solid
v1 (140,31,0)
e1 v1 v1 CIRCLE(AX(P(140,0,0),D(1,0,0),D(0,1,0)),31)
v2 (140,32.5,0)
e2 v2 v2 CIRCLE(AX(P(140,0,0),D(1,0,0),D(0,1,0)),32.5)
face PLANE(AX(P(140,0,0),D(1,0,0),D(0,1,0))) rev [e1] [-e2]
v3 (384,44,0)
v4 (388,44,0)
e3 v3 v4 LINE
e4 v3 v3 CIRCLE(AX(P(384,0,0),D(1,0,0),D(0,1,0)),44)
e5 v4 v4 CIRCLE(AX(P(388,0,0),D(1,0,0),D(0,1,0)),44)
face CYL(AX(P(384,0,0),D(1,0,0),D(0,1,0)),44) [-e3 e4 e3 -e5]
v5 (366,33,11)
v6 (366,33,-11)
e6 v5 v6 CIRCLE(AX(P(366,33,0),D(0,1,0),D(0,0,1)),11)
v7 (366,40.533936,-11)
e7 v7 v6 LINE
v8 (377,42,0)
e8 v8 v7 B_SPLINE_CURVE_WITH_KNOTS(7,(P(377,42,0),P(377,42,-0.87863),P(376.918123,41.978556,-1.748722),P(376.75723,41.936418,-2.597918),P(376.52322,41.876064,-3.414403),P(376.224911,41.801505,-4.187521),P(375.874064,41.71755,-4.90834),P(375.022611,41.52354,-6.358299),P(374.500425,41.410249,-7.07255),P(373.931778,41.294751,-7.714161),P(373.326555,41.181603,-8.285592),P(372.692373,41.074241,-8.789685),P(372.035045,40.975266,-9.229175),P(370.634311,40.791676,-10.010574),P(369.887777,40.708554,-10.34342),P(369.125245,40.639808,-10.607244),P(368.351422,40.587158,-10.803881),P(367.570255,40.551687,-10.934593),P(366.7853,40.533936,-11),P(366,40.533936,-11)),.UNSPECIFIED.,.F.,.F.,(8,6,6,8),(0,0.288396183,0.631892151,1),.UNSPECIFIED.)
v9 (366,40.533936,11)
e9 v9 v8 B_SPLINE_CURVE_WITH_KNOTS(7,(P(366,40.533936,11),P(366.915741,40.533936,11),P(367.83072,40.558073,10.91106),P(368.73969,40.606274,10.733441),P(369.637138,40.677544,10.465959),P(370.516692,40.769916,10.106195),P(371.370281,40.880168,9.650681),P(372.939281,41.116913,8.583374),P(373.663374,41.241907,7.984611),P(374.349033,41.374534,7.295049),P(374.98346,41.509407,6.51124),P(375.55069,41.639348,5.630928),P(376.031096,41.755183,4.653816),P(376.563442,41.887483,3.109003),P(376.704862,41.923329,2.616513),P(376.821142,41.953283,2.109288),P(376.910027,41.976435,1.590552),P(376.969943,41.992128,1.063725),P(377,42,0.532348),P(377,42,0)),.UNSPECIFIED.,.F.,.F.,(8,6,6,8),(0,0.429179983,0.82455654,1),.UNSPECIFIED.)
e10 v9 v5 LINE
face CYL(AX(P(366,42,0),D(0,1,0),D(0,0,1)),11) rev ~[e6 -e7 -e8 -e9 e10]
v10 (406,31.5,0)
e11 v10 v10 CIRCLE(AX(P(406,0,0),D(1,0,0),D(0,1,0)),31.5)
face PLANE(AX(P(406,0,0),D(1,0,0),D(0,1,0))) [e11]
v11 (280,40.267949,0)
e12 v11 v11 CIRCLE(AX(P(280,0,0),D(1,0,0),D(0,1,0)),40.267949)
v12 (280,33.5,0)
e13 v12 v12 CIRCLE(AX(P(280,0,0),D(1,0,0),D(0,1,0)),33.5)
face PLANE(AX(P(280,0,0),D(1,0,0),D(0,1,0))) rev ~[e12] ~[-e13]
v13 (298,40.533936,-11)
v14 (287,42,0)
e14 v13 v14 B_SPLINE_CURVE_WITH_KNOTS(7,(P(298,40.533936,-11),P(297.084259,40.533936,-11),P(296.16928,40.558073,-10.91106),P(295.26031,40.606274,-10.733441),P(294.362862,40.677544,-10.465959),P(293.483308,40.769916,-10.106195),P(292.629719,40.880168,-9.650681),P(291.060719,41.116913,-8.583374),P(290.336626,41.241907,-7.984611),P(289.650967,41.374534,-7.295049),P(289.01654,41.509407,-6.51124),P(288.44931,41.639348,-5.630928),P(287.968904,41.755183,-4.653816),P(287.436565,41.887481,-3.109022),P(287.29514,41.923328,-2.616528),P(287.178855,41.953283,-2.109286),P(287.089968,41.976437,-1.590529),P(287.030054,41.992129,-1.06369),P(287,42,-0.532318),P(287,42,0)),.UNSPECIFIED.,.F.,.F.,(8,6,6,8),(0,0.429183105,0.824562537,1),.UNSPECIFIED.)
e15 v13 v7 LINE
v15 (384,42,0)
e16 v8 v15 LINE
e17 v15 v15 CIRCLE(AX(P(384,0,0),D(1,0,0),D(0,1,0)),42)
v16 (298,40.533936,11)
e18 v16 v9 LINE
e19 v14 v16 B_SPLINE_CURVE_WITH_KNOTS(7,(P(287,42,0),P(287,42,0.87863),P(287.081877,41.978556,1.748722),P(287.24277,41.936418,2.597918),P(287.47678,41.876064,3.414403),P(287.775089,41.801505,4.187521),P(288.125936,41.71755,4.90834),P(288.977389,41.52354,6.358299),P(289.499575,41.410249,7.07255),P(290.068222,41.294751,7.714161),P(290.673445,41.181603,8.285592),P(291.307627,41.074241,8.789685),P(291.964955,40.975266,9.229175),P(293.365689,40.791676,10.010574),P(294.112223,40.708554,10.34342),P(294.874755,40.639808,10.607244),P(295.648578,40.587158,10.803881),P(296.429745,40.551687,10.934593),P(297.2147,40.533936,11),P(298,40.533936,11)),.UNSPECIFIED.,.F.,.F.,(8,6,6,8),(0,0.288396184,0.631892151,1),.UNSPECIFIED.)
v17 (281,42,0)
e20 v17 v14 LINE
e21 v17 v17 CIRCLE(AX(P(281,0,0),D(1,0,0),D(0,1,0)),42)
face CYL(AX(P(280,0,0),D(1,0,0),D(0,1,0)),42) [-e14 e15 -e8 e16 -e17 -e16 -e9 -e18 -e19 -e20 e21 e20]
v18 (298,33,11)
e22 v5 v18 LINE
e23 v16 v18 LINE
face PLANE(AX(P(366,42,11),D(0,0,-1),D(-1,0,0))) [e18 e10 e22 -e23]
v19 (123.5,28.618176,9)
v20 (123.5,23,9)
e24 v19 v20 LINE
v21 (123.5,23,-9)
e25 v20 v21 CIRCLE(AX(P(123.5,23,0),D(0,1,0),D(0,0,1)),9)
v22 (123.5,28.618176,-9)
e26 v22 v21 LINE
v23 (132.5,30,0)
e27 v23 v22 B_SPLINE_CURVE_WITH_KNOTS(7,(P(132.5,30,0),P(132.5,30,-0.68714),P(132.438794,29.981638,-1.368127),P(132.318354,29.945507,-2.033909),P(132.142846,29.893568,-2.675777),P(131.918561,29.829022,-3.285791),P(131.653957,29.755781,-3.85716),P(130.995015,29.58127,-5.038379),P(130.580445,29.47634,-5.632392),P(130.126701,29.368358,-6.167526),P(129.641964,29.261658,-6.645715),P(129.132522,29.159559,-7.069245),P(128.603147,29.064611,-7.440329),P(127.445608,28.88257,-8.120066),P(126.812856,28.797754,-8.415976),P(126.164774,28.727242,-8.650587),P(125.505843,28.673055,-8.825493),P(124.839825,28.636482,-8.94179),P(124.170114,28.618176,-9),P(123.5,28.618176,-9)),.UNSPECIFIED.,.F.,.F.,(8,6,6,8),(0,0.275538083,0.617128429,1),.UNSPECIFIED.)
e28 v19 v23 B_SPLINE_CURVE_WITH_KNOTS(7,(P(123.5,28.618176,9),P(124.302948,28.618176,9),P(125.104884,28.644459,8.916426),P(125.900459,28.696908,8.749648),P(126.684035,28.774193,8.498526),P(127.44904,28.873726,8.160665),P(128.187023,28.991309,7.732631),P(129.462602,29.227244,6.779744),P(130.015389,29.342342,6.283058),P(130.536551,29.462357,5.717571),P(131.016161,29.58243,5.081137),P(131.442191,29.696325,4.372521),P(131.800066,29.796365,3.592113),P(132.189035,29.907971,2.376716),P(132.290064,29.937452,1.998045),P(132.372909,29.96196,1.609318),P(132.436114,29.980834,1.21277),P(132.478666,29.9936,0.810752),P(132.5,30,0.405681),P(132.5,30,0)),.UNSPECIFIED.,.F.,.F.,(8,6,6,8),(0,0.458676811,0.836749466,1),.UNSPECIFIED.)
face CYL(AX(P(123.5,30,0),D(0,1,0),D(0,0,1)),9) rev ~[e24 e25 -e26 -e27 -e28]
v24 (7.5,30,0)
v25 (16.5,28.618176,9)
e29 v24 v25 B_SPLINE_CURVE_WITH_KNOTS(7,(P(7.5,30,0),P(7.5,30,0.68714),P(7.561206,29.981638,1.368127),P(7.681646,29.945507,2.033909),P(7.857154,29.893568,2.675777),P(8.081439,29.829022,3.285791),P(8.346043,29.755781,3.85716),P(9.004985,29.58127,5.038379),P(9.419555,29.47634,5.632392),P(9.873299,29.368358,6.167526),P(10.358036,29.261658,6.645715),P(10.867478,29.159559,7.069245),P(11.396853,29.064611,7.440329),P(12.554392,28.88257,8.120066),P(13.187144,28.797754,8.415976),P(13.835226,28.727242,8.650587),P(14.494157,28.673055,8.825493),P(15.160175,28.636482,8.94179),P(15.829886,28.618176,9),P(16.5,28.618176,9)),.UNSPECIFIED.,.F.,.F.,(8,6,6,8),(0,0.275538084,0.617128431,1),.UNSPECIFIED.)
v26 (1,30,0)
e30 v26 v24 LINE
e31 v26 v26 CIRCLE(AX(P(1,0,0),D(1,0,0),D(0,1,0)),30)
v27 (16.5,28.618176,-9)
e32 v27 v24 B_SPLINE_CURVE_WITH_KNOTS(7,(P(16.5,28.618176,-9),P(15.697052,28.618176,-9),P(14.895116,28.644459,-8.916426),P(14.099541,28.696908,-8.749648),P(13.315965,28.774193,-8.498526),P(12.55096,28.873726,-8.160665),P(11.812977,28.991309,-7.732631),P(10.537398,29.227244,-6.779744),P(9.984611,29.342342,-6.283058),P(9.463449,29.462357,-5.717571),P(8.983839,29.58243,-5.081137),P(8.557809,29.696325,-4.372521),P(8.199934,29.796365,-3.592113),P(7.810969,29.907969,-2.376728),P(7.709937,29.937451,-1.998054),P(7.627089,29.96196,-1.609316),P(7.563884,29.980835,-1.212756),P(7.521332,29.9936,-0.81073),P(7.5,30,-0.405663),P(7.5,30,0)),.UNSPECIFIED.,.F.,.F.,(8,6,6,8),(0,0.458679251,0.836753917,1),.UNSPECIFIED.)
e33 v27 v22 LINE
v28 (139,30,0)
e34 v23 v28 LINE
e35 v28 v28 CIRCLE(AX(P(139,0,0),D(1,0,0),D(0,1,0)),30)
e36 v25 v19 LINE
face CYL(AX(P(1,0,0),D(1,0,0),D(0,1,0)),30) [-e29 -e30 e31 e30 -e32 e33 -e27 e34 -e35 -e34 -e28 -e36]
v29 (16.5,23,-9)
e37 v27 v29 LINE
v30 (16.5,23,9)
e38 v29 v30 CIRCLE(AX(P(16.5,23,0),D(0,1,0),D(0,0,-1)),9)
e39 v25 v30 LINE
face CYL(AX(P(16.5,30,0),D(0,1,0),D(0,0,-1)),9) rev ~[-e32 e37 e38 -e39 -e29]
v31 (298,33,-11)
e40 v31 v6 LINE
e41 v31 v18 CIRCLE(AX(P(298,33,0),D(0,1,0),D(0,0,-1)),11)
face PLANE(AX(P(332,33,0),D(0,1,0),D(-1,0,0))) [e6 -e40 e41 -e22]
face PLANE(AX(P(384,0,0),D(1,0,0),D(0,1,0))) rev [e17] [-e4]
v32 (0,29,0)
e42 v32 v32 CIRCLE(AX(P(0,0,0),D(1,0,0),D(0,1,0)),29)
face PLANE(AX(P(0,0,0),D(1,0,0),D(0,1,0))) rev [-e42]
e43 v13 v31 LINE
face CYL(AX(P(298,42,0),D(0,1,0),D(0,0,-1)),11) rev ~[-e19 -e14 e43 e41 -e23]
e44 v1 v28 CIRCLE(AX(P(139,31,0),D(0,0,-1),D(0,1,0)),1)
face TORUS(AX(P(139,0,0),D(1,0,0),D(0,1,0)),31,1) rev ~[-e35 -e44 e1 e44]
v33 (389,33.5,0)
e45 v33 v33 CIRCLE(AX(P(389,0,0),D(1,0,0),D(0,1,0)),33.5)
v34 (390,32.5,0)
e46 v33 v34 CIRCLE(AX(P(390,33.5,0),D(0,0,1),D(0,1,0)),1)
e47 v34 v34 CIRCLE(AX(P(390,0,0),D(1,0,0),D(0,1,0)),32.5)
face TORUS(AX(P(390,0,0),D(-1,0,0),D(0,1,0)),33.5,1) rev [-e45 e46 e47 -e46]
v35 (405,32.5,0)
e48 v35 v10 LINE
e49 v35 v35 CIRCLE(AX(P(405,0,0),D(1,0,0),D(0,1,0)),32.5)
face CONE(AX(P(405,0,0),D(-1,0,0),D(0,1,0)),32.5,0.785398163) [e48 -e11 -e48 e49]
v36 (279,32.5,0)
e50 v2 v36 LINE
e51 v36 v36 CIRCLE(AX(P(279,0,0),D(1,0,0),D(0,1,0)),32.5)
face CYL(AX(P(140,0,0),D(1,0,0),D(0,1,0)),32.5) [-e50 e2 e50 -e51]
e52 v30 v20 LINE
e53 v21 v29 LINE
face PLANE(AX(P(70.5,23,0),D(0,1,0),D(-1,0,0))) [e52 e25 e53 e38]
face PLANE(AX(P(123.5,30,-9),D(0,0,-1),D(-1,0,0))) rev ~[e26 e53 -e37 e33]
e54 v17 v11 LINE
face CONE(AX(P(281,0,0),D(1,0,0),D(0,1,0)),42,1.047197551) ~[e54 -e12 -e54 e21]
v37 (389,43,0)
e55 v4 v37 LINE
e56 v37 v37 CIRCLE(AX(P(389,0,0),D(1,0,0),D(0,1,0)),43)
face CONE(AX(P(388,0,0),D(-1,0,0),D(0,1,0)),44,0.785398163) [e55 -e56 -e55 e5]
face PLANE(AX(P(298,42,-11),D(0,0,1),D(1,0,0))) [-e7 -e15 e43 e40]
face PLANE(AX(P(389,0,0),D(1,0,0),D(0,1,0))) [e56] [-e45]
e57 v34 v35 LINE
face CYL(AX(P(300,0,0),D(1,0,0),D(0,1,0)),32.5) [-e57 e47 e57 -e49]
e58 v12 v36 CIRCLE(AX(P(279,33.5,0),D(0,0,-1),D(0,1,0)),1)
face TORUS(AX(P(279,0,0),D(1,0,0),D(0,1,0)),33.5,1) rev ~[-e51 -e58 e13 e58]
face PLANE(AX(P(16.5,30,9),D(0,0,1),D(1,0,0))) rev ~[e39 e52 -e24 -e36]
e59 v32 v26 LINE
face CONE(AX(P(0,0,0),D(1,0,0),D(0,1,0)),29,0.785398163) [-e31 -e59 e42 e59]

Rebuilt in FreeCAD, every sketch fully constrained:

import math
import FreeCAD as App
import Part
import Sketcher
from FreeCAD import Vector
Q = App.Units.Quantity


def edges_at(feature, points):
    """Names of the edges that pass closest to the given points."""
    edges = feature.Shape.Edges
    near = lambda p: min(range(len(edges)), key=lambda i: edges[i].distToShape(Part.Vertex(*p))[0])
    return sorted({f"Edge{near(p) + 1}" for p in points})


def add_polygon(sketch, points):
    """Adds a closed chain of lines whose ends are joined by coincident constraints."""
    first, n = sketch.GeometryCount, len(points)
    for a, b in zip(points, points[1:] + points[:1]):
        sketch.addGeometry(Part.LineSegment(App.Vector(*a, 0), App.Vector(*b, 0)), False)
    for i in range(n):
        sketch.addConstraint(Sketcher.Constraint("Coincident", first + i, 2, first + (i + 1) % n, 1))

doc = App.newDocument("Part")
body = doc.addObject("PartDesign::Body", "Body")

sketch1 = doc.addObject("Sketcher::SketchObject", "Sketch")
body.addObject(sketch1)
sketch1.AttachmentSupport = (doc.XY_Plane, [""])
sketch1.MapMode = "FlatFace"
add_polygon(sketch1, [(0, 29), (0, 0), (406, 0), (406, 31.5), (405, 32.5), (389, 32.5), (389, 44), (384, 44), (384, 42), (280, 42), (280, 32.5), (140, 32.5), (140, 30), (1, 30)])
sketch1.addConstraint([
    Sketcher.Constraint("Vertical", 0),
    Sketcher.Constraint("Horizontal", 1),
    Sketcher.Constraint("Vertical", 2),
    Sketcher.Constraint("Horizontal", 4),
    Sketcher.Constraint("Vertical", 5),
    Sketcher.Constraint("Horizontal", 6),
    Sketcher.Constraint("Vertical", 7),
    Sketcher.Constraint("Horizontal", 8),
    Sketcher.Constraint("Vertical", 9),
    Sketcher.Constraint("Horizontal", 10),
    Sketcher.Constraint("Vertical", 11),
    Sketcher.Constraint("Horizontal", 12),
    Sketcher.Constraint("Coincident", 0, 2, -1, 1),
    Sketcher.Constraint("Perpendicular", 3, 13),
    Sketcher.Constraint("Horizontal", 4, 2, 9, 2),
    Sketcher.Constraint("Equal", 3, 13),
    Sketcher.Constraint("DistanceX", 6, 2, 6, 1, Q("5 mm")),
    Sketcher.Constraint("DistanceX", 8, 2, 8, 1, Q("104 mm")),
    Sketcher.Constraint("DistanceX", 10, 2, 10, 1, Q("140 mm")),
    Sketcher.Constraint("DistanceY", 7, 2, 7, 1, Q("2 mm")),
    Sketcher.Constraint("DistanceY", -1, 1, 7, 2, Q("42 mm")),
    Sketcher.Constraint("DistanceX", -1, 1, 10, 2, Q("140 mm")),
    Sketcher.Constraint("DistanceY", -1, 1, 11, 2, Q("30 mm")),
    Sketcher.Constraint("DistanceX", -1, 1, 12, 2, Q("1 mm")),
    Sketcher.Constraint("DistanceX", 3, 2, 2, 2, Q("1 mm")),
    Sketcher.Constraint("DistanceX", 4, 2, 2, 2, Q("17 mm")),
    Sketcher.Constraint("DistanceY", -1, 1, 3, 2, Q("32.5 mm")),
])
revolution = doc.addObject("PartDesign::Revolution", "Revolution")
body.addObject(revolution)
revolution.Profile = sketch1
revolution.ReferenceAxis = (sketch1, ["H_Axis"])
revolution.Angle = 360

sketch2 = doc.addObject("Sketcher::SketchObject", "Sketch001")
body.addObject(sketch2)
sketch2.AttachmentSupport = (doc.XZ_Plane, [""])
sketch2.MapMode = "FlatFace"
sketch2.AttachmentOffset = App.Placement(Vector(0, 0, -30), App.Rotation())
sketch2.addGeometry([
    Part.ArcOfCircle(Part.Circle(Vector(16, 0, 0), Vector(0, 0, 1), 9), math.radians(90), math.radians(270)),
    Part.LineSegment(Vector(16, 9, 0), Vector(124, 9, 0)),
    Part.ArcOfCircle(Part.Circle(Vector(124, 0, 0), Vector(0, 0, 1), 9), math.radians(-90), math.radians(90)),
    Part.LineSegment(Vector(124, -9, 0), Vector(16, -9, 0)),
], False)
sketch2.addConstraint([
    Sketcher.Constraint("Tangent", 0, 1, 1, 1),
    Sketcher.Constraint("Tangent", 1, 2, 2, 2),
    Sketcher.Constraint("Tangent", 2, 1, 3, 1),
    Sketcher.Constraint("Tangent", 3, 2, 0, 2),
    Sketcher.Constraint("Horizontal", 1),
    Sketcher.Constraint("Horizontal", 3),
    Sketcher.Constraint("PointOnObject", 0, 3, -1),
    Sketcher.Constraint("Radius", 0, Q("9 mm")),
    Sketcher.Constraint("DistanceX", 1, 1, 1, 2, Q("107 mm")),
    Sketcher.Constraint("DistanceX", -1, 1, 0, 3, Q("16.5 mm")),
])
pocket1 = doc.addObject("PartDesign::Pocket", "Pocket")
body.addObject(pocket1)
pocket1.Profile = sketch2
pocket1.Length = 7
pocket1.Reversed = True

sketch3 = doc.addObject("Sketcher::SketchObject", "Sketch002")
body.addObject(sketch3)
sketch3.AttachmentSupport = (doc.XZ_Plane, [""])
sketch3.MapMode = "FlatFace"
sketch3.AttachmentOffset = App.Placement(Vector(0, 0, -42), App.Rotation())
sketch3.addGeometry([
    Part.LineSegment(Vector(366, -11, 0), Vector(298, -11, 0)),
    Part.ArcOfCircle(Part.Circle(Vector(298, 0, 0), Vector(0, 0, 1), 11), math.radians(90), math.radians(270)),
    Part.LineSegment(Vector(298, 11, 0), Vector(366, 11, 0)),
    Part.ArcOfCircle(Part.Circle(Vector(366, 0, 0), Vector(0, 0, 1), 11), math.radians(-90), math.radians(90)),
], False)
sketch3.addConstraint([
    Sketcher.Constraint("Tangent", 0, 2, 1, 2),
    Sketcher.Constraint("Tangent", 1, 1, 2, 1),
    Sketcher.Constraint("Tangent", 2, 2, 3, 2),
    Sketcher.Constraint("Tangent", 3, 1, 0, 1),
    Sketcher.Constraint("Horizontal", 0),
    Sketcher.Constraint("Horizontal", 2),
    Sketcher.Constraint("PointOnObject", 1, 3, -1),
    Sketcher.Constraint("Radius", 1, Q("11 mm")),
    Sketcher.Constraint("DistanceX", 0, 2, 0, 1, Q("68 mm")),
    Sketcher.Constraint("DistanceX", -1, 1, 1, 3, Q("298 mm")),
])
pocket2 = doc.addObject("PartDesign::Pocket", "Pocket001")
body.addObject(pocket2)
pocket2.Profile = sketch3
pocket2.Length = 9
pocket2.Reversed = True
doc.recompute()

chamfer = doc.addObject("PartDesign::Chamfer", "Chamfer")
body.addObject(chamfer)
chamfer.Base = (pocket2, edges_at(pocket2, [(389, -44, 0)]))
chamfer.Size = 1
doc.recompute()

chamfer2 = doc.addObject("PartDesign::Chamfer", "Chamfer001")
body.addObject(chamfer2)
chamfer2.Base = (chamfer, edges_at(chamfer, [(280, -42, 0)]))
chamfer2.ChamferType = "Distance and Angle"
chamfer2.Size = 1
chamfer2.Angle = 60
doc.recompute()

fillet = doc.addObject("PartDesign::Fillet", "Fillet")
body.addObject(fillet)
fillet.Base = (chamfer2, edges_at(chamfer2, [(280, -32.5, 0)]))
fillet.Radius = 1
doc.recompute()

fillet2 = doc.addObject("PartDesign::Fillet", "Fillet001")
body.addObject(fillet2)
fillet2.Base = (fillet, edges_at(fillet, [(140, -30, 0)]))
fillet2.Radius = 1
doc.recompute()

fillet3 = doc.addObject("PartDesign::Fillet", "Fillet002")
body.addObject(fillet3)
fillet3.Base = (fillet2, edges_at(fillet2, [(389, -32.5, 0)]))
fillet3.Radius = 1

doc.recompute()
